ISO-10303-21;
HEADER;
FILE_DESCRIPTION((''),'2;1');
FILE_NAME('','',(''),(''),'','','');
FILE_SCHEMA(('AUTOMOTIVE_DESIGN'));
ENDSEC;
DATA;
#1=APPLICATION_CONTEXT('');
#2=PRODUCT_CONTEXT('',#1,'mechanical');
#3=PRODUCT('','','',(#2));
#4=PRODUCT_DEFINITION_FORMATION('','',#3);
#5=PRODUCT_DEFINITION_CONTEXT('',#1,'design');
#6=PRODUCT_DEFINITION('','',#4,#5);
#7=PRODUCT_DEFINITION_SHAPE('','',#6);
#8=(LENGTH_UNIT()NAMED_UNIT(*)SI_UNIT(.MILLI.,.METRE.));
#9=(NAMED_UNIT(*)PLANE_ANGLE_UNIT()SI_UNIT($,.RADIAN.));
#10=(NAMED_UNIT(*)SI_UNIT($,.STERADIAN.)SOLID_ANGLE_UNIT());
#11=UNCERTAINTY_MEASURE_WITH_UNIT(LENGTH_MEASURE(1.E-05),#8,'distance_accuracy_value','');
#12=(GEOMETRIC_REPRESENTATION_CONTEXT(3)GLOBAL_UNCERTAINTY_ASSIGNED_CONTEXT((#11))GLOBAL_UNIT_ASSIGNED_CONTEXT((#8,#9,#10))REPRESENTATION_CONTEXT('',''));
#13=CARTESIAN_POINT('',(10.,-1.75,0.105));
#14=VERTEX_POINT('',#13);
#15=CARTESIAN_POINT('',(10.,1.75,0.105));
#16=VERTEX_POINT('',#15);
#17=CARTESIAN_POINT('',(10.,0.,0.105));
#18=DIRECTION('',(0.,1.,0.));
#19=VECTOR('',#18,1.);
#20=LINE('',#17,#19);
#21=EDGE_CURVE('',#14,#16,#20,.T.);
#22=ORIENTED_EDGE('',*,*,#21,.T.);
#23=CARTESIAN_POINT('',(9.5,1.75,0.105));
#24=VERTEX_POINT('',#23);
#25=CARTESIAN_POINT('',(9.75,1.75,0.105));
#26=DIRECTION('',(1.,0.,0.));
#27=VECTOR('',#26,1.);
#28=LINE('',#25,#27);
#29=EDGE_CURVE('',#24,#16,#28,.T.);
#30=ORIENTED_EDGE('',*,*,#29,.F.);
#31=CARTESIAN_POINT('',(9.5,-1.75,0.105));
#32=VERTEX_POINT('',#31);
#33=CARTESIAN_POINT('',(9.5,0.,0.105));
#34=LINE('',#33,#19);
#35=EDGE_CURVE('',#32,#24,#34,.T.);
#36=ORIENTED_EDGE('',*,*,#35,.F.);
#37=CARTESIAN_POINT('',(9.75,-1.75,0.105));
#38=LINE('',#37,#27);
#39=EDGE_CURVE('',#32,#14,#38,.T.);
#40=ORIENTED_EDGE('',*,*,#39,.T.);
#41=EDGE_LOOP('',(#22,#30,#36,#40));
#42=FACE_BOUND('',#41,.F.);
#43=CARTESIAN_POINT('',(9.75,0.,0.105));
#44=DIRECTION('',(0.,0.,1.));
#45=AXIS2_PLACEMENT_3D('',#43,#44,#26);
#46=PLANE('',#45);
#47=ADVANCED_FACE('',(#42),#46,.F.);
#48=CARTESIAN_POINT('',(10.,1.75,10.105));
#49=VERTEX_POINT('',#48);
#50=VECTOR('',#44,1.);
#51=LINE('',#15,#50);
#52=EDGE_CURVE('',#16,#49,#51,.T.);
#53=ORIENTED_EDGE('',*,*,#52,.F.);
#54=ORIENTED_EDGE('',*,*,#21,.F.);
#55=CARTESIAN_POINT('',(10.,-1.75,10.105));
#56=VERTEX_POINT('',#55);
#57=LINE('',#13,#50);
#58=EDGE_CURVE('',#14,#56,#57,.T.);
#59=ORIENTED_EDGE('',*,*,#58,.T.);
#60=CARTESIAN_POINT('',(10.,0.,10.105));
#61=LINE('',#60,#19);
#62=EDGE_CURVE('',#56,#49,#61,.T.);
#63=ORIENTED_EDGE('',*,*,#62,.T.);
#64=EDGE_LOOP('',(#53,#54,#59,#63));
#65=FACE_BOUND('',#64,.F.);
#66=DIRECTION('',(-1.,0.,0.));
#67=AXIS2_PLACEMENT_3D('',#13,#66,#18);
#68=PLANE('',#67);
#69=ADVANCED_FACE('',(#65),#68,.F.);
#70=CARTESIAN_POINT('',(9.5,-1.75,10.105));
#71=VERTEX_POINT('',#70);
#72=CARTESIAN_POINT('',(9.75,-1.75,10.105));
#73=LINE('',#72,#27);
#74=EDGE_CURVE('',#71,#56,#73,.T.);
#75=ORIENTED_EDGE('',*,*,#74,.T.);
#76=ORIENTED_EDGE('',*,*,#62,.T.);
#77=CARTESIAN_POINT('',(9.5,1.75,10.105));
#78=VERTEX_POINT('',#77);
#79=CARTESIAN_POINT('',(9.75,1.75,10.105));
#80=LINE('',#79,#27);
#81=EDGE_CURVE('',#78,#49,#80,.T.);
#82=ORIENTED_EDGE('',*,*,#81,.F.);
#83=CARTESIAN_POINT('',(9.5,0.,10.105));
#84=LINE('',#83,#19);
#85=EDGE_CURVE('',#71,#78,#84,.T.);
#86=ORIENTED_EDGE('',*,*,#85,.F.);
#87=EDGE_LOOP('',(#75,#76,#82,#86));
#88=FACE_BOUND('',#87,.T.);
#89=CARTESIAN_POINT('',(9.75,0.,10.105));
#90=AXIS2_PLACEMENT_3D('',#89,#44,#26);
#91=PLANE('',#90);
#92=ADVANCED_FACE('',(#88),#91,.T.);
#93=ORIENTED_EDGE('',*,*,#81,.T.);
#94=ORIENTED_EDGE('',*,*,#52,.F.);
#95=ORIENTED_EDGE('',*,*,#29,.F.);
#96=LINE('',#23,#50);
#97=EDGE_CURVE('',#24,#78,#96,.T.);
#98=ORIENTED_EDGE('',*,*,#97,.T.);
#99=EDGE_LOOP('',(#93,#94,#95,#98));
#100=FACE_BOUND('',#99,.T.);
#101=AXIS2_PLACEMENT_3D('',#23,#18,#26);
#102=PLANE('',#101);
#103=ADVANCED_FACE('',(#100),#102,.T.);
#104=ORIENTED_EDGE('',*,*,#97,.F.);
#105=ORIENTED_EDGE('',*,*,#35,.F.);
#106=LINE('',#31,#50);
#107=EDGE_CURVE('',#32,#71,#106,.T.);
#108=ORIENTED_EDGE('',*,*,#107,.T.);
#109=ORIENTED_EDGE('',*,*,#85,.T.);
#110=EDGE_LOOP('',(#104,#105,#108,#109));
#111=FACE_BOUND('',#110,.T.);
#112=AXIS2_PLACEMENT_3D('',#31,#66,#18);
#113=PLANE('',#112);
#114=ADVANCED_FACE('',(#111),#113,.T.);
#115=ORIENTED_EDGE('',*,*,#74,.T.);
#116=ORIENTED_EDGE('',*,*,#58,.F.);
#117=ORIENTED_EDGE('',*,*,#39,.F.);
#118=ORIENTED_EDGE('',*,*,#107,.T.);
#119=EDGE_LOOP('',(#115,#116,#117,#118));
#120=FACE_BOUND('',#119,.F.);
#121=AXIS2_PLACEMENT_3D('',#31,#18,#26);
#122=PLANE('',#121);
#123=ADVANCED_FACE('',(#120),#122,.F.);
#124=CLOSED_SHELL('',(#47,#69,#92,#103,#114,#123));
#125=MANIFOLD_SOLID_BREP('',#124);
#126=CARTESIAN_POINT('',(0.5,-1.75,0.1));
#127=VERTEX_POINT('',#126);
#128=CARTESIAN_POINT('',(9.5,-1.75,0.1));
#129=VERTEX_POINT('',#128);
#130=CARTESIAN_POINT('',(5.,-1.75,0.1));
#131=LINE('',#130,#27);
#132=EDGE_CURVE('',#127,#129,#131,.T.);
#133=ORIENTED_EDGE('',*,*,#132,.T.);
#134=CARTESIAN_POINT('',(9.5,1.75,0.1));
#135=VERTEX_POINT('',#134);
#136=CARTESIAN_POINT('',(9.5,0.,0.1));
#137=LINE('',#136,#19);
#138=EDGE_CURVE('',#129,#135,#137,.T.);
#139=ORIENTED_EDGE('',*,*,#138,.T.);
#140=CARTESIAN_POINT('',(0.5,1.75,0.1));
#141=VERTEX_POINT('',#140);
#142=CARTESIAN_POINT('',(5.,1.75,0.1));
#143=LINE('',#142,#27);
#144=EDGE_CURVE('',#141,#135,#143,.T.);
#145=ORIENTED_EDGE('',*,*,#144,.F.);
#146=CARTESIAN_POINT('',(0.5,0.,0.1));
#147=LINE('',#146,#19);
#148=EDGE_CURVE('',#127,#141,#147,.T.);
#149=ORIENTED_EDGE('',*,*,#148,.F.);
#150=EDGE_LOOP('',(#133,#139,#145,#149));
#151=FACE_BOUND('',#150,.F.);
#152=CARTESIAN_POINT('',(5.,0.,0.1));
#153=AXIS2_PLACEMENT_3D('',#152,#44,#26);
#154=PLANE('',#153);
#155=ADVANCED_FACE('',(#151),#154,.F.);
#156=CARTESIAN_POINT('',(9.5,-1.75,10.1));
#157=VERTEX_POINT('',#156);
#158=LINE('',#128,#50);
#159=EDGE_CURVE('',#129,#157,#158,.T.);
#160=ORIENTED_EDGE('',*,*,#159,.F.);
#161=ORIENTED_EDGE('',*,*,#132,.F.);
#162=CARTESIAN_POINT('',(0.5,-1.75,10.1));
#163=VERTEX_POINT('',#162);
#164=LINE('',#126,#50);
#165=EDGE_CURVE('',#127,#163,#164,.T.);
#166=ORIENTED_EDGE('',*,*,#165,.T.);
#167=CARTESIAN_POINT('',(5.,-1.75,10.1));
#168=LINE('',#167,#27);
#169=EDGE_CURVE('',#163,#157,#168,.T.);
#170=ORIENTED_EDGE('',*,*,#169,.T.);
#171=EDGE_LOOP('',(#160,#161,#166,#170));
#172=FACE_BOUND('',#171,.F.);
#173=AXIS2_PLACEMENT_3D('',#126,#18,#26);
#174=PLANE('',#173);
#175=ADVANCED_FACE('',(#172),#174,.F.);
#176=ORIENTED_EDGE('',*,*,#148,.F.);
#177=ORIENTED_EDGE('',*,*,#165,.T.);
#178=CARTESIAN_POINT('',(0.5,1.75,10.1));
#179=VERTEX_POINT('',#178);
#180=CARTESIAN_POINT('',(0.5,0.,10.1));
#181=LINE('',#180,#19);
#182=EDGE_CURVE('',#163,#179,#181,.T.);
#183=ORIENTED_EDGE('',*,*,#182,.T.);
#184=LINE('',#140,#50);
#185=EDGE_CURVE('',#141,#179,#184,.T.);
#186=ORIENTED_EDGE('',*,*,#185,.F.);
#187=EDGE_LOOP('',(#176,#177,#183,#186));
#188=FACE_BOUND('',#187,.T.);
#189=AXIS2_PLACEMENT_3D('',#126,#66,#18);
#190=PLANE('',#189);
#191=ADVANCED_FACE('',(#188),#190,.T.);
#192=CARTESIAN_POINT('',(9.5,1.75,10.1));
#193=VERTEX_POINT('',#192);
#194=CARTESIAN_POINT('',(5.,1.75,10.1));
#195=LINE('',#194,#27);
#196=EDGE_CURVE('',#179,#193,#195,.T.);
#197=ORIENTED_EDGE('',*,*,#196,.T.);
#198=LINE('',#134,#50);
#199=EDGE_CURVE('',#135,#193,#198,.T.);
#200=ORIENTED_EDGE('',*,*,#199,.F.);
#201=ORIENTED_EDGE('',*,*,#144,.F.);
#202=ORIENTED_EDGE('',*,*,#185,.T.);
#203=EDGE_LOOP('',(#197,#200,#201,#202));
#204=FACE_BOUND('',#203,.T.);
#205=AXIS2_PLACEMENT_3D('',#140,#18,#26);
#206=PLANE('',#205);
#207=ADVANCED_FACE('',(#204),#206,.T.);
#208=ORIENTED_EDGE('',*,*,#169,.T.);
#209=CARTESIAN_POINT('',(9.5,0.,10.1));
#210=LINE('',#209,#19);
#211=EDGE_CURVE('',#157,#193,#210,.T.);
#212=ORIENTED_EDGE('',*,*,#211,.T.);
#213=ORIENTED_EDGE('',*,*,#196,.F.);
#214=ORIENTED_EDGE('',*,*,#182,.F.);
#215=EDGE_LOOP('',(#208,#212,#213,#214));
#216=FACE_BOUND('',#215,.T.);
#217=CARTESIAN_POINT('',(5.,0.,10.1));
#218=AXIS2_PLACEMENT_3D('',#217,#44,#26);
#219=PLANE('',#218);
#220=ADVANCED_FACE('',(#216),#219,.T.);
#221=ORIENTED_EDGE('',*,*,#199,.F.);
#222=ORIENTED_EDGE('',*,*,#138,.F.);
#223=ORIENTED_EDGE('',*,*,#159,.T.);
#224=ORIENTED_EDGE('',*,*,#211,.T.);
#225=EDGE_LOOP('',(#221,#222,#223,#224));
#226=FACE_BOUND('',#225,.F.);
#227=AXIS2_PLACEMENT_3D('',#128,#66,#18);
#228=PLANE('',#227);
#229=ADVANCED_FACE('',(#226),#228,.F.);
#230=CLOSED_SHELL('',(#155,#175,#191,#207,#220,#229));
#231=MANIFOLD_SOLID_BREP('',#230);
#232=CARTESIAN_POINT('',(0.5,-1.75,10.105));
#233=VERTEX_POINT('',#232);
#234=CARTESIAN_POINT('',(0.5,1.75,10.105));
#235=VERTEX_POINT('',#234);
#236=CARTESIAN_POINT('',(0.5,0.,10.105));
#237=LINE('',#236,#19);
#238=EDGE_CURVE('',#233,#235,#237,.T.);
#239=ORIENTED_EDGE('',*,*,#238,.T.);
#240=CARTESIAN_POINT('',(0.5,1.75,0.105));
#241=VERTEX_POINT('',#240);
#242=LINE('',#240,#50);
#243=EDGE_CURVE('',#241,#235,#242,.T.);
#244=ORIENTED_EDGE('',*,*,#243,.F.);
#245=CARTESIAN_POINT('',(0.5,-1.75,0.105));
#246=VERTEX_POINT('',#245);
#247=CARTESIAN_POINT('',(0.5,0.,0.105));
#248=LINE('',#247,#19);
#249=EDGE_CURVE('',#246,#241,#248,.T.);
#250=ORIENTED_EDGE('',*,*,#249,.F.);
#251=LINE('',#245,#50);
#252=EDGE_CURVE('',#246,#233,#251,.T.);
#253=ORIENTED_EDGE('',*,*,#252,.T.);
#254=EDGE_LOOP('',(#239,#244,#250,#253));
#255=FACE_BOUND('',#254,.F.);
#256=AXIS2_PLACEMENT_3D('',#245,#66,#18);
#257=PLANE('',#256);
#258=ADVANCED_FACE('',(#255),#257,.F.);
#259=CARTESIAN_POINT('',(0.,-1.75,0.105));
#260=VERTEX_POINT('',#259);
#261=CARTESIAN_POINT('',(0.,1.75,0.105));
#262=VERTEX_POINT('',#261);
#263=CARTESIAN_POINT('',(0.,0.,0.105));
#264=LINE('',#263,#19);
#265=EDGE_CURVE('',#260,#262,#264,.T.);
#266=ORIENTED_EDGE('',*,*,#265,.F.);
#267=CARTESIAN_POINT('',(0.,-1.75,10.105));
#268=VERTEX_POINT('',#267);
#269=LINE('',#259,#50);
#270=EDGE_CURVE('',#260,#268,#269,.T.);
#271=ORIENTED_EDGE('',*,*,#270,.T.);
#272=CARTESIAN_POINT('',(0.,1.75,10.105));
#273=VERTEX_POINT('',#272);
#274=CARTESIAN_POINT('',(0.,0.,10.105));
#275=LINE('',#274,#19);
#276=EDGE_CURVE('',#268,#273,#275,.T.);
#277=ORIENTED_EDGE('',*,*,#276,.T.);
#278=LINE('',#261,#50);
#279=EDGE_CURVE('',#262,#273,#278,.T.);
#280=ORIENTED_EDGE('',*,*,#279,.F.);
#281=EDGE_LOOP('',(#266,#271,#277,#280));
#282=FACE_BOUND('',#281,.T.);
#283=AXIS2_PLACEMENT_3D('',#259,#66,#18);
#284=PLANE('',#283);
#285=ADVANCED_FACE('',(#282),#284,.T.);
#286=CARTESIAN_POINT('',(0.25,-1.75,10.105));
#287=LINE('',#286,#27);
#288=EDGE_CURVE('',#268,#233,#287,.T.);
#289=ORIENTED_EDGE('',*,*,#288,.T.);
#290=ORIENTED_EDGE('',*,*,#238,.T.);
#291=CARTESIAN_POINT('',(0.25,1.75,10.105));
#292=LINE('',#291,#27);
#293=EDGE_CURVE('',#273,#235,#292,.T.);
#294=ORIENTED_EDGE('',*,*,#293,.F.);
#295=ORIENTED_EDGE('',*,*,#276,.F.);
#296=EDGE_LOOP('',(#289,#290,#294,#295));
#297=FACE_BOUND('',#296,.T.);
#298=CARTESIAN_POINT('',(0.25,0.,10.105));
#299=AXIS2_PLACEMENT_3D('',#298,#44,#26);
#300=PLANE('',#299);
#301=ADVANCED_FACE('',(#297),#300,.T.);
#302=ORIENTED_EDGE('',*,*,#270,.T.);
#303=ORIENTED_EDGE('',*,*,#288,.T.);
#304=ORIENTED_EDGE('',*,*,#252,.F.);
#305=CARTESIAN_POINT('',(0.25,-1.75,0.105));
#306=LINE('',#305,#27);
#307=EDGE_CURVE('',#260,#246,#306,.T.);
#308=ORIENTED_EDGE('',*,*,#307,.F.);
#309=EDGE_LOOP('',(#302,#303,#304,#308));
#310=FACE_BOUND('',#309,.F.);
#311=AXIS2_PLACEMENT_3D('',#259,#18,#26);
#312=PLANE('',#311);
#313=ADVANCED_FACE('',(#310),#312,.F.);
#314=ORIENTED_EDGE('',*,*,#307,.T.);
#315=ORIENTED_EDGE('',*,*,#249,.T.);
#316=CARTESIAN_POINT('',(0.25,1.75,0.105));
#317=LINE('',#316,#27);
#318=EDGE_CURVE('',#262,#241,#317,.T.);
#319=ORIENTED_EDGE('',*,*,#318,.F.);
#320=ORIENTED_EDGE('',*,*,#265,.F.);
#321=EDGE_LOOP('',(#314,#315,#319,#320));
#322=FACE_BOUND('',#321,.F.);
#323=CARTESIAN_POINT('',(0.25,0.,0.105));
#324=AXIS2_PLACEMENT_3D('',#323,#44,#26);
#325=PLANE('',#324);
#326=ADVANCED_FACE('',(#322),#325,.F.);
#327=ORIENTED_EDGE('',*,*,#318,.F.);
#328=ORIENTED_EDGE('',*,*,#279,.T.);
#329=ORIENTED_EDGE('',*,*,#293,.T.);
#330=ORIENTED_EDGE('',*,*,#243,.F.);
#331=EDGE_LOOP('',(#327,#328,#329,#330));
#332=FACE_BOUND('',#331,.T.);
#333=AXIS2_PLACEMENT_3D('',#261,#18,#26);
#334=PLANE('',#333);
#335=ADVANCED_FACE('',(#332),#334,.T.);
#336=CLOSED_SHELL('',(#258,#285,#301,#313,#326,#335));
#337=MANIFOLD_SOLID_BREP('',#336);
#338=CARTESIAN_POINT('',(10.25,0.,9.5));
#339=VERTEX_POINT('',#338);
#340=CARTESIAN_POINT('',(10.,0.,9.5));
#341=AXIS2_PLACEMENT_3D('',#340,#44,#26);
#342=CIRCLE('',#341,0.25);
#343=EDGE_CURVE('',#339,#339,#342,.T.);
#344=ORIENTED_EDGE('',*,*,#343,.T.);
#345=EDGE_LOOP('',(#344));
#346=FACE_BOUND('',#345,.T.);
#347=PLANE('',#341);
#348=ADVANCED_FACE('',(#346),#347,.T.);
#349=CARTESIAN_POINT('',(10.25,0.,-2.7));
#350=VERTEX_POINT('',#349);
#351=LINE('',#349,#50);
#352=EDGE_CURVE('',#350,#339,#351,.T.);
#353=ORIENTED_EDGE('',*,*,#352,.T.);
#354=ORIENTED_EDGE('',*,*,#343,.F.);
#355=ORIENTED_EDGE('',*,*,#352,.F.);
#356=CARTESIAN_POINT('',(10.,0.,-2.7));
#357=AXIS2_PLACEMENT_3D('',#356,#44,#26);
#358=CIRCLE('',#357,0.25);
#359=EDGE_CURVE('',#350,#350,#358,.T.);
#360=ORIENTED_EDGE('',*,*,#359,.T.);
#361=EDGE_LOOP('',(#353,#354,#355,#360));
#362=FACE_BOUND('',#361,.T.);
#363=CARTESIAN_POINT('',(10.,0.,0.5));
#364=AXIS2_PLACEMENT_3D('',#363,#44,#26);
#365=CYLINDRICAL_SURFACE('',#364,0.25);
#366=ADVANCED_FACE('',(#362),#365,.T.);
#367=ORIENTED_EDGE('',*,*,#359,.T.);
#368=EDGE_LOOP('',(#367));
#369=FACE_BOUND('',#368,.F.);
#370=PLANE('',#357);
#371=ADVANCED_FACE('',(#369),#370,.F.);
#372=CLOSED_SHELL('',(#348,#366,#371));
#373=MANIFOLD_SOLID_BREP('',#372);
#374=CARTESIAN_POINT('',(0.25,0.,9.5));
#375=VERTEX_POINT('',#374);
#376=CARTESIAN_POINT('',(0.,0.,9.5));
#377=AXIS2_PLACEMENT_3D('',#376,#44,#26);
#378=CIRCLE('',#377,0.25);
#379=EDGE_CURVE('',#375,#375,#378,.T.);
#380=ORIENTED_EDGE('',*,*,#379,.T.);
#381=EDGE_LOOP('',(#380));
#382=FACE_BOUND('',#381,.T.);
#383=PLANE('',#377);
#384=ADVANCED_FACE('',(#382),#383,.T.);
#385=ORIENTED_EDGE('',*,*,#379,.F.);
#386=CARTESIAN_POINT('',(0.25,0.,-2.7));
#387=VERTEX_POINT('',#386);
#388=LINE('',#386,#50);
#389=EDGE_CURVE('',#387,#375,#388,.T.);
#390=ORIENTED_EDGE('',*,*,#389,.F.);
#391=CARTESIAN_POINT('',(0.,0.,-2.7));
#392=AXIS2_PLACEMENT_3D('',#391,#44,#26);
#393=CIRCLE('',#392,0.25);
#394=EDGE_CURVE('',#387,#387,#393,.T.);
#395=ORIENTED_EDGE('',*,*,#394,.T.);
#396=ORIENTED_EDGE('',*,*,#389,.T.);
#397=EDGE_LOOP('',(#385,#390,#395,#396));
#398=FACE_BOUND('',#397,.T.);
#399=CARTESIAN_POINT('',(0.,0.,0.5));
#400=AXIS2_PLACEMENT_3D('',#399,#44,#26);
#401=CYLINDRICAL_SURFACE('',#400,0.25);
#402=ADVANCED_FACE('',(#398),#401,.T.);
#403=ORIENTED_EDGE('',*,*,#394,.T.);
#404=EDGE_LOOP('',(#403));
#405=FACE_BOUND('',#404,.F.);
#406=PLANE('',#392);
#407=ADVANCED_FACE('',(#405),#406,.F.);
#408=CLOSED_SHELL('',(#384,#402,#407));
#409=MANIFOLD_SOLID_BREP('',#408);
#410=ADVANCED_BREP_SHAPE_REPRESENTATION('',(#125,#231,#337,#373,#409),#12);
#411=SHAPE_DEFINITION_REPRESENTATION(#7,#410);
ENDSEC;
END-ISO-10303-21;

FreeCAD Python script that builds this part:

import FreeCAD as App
import Part
import Sketcher
Q = App.Units.Quantity

doc = App.newDocument("Part")
body = doc.addObject("PartDesign::Body", "Body")

# Sketch on XY plane
sketch1 = doc.addObject("Sketcher::SketchObject", "Sketch")
body.addObject(sketch1)
sketch1.AttachmentSupport = (doc.XY_Plane, [""])
sketch1.MapMode = "FlatFace"
sketch1.AttachmentOffset = App.Placement(App.Vector(0, 0, 0.1), App.Rotation())
sketch1.addGeometry([
    Part.LineSegment(App.Vector(0.5, 1.8, 0), App.Vector(0.5, -1.8, 0)),
    Part.LineSegment(App.Vector(0.5, -1.8, 0), App.Vector(9.5, -1.8, 0)),
    Part.LineSegment(App.Vector(9.5, -1.8, 0), App.Vector(9.5, 1.8, 0)),
    Part.LineSegment(App.Vector(9.5, 1.8, 0), App.Vector(0.5, 1.8, 0)),
], False)
sketch1.addConstraint([
    Sketcher.Constraint("Coincident", 0, 2, 1, 1),
    Sketcher.Constraint("Coincident", 1, 2, 2, 1),
    Sketcher.Constraint("Coincident", 2, 2, 3, 1),
    Sketcher.Constraint("Coincident", 3, 2, 0, 1),
    Sketcher.Constraint("Vertical", 0),
    Sketcher.Constraint("Horizontal", 1),
    Sketcher.Constraint("Vertical", 2),
    Sketcher.Constraint("Horizontal", 3),
    Sketcher.Constraint("DistanceX", 1, 1, 1, 2, Q("9 mm")),
    Sketcher.Constraint("DistanceY", 0, 2, 0, 1, Q("3.5 mm")),
    Sketcher.Constraint("DistanceX", -1, 1, 0, 2, Q("0.5 mm")),
    Sketcher.Constraint("DistanceY", 0, 2, -1, 1, Q("1.75 mm")),
])
pad1 = doc.addObject("PartDesign::Pad", "Pad")
body.addObject(pad1)
pad1.Profile = sketch1
pad1.Length = 10
body2 = doc.addObject("PartDesign::Body", "Body001")
body2.AllowCompound = True

# Sketch on XY plane
sketch2 = doc.addObject("Sketcher::SketchObject", "Sketch001")
body2.addObject(sketch2)
sketch2.AttachmentSupport = (doc.getObject("XY_Plane001"), [""])
sketch2.MapMode = "FlatFace"
sketch2.AttachmentOffset = App.Placement(App.Vector(0, 0, 0.5), App.Rotation())
sketch2.addGeometry([
    Part.Circle(App.Vector(0, 0, 0), App.Vector(0, 0, 1), 0.25),
    Part.Circle(App.Vector(10, 0, 0), App.Vector(0, 0, 1), 0.25),
], False)
sketch2.addConstraint([
    Sketcher.Constraint("Coincident", 0, 3, -1, 1),
    Sketcher.Constraint("Equal", 0, 1),
    Sketcher.Constraint("PointOnObject", 1, 3, -1),
    Sketcher.Constraint("Diameter", 0, Q("0.5 mm")),
    Sketcher.Constraint("DistanceX", -1, 1, 1, 3, Q("10 mm")),
])
pad2 = doc.addObject("PartDesign::Pad", "Pad001")
body2.addObject(pad2)
pad2.Profile = sketch2
pad2.Type = "TwoLengths"
pad2.Length = 9
pad2.Length2 = 3.2
body3 = doc.addObject("PartDesign::Body", "Body002")
body3.AllowCompound = True

# Sketch on XY plane
sketch3 = doc.addObject("Sketcher::SketchObject", "Sketch002")
body3.addObject(sketch3)
sketch3.AttachmentSupport = (doc.getObject("XY_Plane002"), [""])
sketch3.MapMode = "FlatFace"
sketch3.AttachmentOffset = App.Placement(App.Vector(0, 0, 0.105), App.Rotation())
sketch3.addGeometry([
    Part.LineSegment(App.Vector(0, 1.8, 0), App.Vector(0, -1.8, 0)),  # 0
    Part.LineSegment(App.Vector(0, -1.8, 0), App.Vector(0.5, -1.8, 0)),  # 1
    Part.LineSegment(App.Vector(0.5, -1.8, 0), App.Vector(0.5, 1.8, 0)),  # 2
    Part.LineSegment(App.Vector(0.5, 1.8, 0), App.Vector(0, 1.8, 0)),  # 3
    Part.LineSegment(App.Vector(9.5, 1.8, 0), App.Vector(9.5, -1.8, 0)),  # 4
    Part.LineSegment(App.Vector(9.5, -1.8, 0), App.Vector(10, -1.8, 0)),  # 5
    Part.LineSegment(App.Vector(10, -1.8, 0), App.Vector(10, 1.8, 0)),  # 6
    Part.LineSegment(App.Vector(10, 1.8, 0), App.Vector(9.5, 1.8, 0)),  # 7
], False)
sketch3.addConstraint([
    Sketcher.Constraint("Coincident", 0, 2, 1, 1),
    Sketcher.Constraint("Coincident", 1, 2, 2, 1),
    Sketcher.Constraint("Coincident", 2, 2, 3, 1),
    Sketcher.Constraint("Coincident", 3, 2, 0, 1),
    Sketcher.Constraint("Coincident", 4, 2, 5, 1),
    Sketcher.Constraint("Coincident", 5, 2, 6, 1),
    Sketcher.Constraint("Coincident", 6, 2, 7, 1),
    Sketcher.Constraint("Coincident", 7, 2, 4, 1),
    Sketcher.Constraint("Vertical", 0),
    Sketcher.Constraint("Horizontal", 1),
    Sketcher.Constraint("Vertical", 2),
    Sketcher.Constraint("Horizontal", 3),
    Sketcher.Constraint("Vertical", 4),
    Sketcher.Constraint("Horizontal", 5),
    Sketcher.Constraint("Vertical", 6),
    Sketcher.Constraint("Horizontal", 7),
    Sketcher.Constraint("Symmetric", 0, 2, 3, 2, -1, 1),
    Sketcher.Constraint("Horizontal", 1, 2, 4, 2),
    Sketcher.Constraint("Horizontal", 3, 2, 6, 2),
    Sketcher.Constraint("Equal", 3, 5),
    Sketcher.Constraint("DistanceX", 1, 1, 1, 2, Q("0.5 mm")),
    Sketcher.Constraint("DistanceY", 0, 2, 0, 1, Q("3.5 mm")),
    Sketcher.Constraint("DistanceX", -1, 1, 5, 2, Q("10 mm")),
])
pad3 = doc.addObject("PartDesign::Pad", "Pad002")
body3.addObject(pad3)
pad3.Profile = sketch3
pad3.Length = 10

doc.recompute()
